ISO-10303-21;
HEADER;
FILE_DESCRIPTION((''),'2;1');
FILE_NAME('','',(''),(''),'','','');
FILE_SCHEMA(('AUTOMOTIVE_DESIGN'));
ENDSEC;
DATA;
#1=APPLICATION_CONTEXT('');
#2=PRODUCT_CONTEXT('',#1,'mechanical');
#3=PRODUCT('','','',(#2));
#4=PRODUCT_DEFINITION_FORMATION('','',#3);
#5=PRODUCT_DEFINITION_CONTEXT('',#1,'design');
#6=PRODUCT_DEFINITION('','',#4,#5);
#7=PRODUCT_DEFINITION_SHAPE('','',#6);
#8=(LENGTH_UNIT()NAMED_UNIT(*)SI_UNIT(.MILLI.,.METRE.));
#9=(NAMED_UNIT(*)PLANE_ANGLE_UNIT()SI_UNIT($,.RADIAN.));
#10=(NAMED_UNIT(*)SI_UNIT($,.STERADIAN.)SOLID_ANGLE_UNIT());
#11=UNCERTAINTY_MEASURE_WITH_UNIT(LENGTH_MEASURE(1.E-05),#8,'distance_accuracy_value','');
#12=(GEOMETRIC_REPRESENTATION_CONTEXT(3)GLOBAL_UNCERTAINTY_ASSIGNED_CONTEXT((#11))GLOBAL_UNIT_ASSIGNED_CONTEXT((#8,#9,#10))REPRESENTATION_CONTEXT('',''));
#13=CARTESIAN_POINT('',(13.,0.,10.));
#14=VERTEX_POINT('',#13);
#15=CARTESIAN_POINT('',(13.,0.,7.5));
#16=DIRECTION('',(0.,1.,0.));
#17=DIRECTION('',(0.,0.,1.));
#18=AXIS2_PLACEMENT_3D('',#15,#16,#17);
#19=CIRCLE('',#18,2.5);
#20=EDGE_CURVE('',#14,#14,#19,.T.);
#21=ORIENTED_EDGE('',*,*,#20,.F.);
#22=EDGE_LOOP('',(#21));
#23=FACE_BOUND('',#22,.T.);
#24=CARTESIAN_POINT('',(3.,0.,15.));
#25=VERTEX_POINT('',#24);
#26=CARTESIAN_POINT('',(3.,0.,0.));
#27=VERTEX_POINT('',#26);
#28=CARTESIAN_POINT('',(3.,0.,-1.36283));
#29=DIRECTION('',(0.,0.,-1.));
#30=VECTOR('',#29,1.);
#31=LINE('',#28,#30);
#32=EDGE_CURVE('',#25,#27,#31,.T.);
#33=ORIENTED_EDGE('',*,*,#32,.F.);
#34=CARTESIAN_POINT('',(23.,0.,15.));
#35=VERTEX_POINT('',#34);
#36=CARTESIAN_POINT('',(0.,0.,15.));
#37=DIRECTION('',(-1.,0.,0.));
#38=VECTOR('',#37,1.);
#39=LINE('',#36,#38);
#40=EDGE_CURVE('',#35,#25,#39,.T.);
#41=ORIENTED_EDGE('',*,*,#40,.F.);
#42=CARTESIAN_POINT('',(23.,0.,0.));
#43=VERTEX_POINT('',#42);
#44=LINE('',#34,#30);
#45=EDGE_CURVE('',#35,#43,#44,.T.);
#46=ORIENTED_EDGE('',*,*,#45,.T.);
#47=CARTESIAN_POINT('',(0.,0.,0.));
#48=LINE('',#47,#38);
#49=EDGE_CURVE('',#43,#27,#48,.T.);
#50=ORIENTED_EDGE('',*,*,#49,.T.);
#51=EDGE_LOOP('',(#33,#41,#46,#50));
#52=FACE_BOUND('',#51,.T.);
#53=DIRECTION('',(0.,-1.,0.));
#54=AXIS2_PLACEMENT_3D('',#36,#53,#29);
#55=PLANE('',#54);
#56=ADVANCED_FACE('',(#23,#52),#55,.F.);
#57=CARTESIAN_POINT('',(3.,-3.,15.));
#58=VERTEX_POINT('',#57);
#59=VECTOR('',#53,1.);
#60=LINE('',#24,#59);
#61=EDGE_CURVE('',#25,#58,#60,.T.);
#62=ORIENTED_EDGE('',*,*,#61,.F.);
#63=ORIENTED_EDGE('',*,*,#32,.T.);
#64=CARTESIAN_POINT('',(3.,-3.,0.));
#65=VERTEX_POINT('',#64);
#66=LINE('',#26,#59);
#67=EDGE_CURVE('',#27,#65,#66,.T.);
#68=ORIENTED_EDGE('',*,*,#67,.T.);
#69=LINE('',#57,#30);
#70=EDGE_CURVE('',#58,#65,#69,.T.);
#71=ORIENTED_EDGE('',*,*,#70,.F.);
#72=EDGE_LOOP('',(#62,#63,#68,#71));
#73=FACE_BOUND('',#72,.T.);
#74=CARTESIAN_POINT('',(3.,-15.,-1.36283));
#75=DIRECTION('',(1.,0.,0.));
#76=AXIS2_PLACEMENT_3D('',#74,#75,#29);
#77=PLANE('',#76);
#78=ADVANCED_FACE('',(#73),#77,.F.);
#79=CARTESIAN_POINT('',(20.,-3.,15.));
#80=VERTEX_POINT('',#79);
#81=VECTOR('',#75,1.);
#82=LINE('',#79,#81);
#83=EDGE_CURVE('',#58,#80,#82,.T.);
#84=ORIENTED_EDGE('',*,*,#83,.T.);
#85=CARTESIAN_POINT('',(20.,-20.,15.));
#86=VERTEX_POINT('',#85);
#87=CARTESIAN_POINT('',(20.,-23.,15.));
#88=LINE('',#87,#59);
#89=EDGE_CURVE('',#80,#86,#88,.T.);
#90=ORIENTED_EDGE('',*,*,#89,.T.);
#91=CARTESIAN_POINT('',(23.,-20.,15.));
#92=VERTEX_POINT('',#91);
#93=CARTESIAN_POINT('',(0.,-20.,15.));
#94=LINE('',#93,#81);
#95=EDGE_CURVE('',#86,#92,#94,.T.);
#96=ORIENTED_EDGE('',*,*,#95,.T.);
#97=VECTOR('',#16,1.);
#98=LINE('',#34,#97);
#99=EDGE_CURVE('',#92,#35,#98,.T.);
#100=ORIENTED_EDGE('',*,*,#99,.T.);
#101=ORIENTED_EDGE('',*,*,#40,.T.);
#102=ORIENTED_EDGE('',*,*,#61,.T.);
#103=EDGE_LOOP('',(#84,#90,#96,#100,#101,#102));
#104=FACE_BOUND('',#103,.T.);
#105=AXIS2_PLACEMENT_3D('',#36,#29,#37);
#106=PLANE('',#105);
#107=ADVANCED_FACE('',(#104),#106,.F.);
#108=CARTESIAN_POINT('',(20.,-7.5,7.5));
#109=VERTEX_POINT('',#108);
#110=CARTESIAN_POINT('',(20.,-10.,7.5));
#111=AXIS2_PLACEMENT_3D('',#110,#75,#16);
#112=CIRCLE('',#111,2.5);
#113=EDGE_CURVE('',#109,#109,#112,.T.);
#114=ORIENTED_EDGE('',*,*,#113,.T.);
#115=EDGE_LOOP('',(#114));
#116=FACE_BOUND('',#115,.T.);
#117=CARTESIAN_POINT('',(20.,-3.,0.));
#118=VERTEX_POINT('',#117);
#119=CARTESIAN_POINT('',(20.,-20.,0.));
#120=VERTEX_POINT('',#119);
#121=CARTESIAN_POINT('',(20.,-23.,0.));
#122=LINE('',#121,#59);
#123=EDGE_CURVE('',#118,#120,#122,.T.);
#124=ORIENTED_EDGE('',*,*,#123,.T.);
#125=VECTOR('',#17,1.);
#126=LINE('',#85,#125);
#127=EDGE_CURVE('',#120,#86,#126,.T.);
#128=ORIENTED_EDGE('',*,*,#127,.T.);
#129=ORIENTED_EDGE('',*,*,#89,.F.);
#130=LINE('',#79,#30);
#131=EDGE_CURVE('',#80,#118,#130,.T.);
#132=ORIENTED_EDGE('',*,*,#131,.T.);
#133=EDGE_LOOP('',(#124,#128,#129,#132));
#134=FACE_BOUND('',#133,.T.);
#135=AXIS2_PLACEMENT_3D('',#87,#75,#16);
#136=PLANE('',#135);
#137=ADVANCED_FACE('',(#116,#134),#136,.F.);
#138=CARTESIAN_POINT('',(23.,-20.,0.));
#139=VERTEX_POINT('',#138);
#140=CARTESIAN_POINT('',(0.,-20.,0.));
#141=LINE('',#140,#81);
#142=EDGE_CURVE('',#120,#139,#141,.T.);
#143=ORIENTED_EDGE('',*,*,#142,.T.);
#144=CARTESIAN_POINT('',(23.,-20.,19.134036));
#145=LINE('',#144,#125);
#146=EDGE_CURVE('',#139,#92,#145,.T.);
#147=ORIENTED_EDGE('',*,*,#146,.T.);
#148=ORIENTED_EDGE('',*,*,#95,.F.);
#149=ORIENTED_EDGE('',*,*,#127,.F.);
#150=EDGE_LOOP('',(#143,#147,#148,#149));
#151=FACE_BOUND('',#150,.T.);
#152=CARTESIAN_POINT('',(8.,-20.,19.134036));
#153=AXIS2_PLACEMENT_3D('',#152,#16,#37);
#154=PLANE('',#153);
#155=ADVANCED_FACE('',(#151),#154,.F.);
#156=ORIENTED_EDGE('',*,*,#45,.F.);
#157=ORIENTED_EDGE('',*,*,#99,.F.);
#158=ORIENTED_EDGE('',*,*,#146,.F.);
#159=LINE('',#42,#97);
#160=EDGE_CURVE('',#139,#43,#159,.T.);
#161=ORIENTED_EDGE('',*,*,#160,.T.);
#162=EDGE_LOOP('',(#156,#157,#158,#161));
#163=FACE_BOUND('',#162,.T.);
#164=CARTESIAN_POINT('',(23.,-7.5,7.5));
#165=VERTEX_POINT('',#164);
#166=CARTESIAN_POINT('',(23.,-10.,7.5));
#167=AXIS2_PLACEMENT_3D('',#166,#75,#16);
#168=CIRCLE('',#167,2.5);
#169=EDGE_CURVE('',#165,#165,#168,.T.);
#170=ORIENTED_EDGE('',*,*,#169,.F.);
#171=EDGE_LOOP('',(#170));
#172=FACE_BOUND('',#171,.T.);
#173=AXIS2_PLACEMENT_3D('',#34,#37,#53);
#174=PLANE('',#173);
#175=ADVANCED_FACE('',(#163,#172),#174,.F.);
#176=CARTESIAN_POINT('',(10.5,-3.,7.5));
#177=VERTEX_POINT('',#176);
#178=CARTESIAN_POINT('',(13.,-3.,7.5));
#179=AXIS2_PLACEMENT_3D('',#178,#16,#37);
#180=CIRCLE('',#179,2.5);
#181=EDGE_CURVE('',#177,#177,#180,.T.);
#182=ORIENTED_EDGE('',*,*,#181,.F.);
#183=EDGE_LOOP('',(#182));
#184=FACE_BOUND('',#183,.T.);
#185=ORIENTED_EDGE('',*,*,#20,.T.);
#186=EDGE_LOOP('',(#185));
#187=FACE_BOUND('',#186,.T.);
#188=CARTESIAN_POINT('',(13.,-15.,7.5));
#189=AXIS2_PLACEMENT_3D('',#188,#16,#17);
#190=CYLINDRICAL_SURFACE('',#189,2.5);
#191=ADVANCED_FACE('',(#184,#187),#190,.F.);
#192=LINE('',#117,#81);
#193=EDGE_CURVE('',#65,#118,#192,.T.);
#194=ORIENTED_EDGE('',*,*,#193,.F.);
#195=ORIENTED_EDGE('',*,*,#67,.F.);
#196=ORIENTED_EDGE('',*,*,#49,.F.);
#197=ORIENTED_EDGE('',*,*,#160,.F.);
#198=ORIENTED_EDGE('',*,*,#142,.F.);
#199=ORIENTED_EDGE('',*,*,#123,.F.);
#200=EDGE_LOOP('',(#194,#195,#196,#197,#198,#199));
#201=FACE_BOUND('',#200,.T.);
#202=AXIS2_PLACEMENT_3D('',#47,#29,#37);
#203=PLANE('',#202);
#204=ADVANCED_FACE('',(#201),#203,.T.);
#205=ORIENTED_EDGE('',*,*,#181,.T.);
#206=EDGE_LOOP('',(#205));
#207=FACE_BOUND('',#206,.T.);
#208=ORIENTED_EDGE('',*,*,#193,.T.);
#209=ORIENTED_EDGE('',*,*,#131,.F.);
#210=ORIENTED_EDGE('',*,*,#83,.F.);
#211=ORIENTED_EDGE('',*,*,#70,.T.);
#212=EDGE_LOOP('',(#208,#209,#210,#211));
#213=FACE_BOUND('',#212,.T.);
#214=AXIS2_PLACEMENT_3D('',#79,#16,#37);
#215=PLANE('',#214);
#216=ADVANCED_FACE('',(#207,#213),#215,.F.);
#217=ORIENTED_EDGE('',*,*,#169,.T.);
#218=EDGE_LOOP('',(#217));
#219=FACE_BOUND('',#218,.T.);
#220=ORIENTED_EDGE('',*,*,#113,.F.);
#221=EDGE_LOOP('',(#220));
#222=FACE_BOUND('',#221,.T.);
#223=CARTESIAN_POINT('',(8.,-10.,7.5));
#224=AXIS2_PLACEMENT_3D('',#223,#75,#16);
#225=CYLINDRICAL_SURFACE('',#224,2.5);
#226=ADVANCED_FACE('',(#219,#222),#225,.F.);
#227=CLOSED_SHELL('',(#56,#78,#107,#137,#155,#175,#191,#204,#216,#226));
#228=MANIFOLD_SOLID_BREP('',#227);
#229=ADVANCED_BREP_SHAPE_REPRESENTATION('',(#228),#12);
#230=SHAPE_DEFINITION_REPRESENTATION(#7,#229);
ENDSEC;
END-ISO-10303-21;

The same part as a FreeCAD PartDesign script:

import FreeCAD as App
import Part
import Sketcher
from FreeCAD import Vector


def add_polygon(sketch, points):
    """Adds a closed chain of lines whose ends are joined by coincident constraints."""
    first, n = sketch.GeometryCount, len(points)
    for a, b in zip(points, points[1:] + points[:1]):
        sketch.addGeometry(Part.LineSegment(App.Vector(*a, 0), App.Vector(*b, 0)), False)
    for i in range(n):
        sketch.addConstraint(Sketcher.Constraint("Coincident", first + i, 2, first + (i + 1) % n, 1))

doc = App.newDocument("Part")
body = doc.addObject("PartDesign::Body", "Body")

# Sketch on XY plane
sketch1 = doc.addObject("Sketcher::SketchObject", "Sketch")
body.addObject(sketch1)
sketch1.AttachmentSupport = (doc.XY_Plane, [""])
sketch1.MapMode = "FlatFace"
add_polygon(sketch1, [(23, 0), (0, 0), (0, -3), (20, -3), (20, -23), (23, -23)])  # lines 0-5
sketch1.addConstraint(Sketcher.Constraint("Horizontal", 0))
sketch1.addConstraint(Sketcher.Constraint("Vertical", 1))
sketch1.addConstraint(Sketcher.Constraint("Horizontal", 2))
sketch1.addConstraint(Sketcher.Constraint("Vertical", 3))
sketch1.addConstraint(Sketcher.Constraint("Horizontal", 4))
sketch1.addConstraint(Sketcher.Constraint("Vertical", 5))
sketch1.addConstraint(Sketcher.Constraint("Coincident", 0, 2, -1, 1))
sketch1.addConstraint(Sketcher.Constraint("Equal", 4, 1))
sketch1.addConstraint(Sketcher.Constraint("Equal", 2, 3))
sketch1.addConstraint(Sketcher.Constraint("DistanceX", 0, 2, 0, 1, 23.0))
sketch1.addConstraint(Sketcher.Constraint("DistanceX", 2, 1, 2, 2, 20.0))
pad1 = doc.addObject("PartDesign::Pad", "Pad")
body.addObject(pad1)
pad1.Profile = sketch1
pad1.Length = 15

# Sketch on XZ plane
sketch2 = doc.addObject("Sketcher::SketchObject", "Sketch001")
body.addObject(sketch2)
sketch2.AttachmentSupport = (doc.XZ_Plane, [""])
sketch2.MapMode = "FlatFace"
sketch2.addGeometry(Part.Circle(Vector(13, 7.5, 0), Vector(0, 0, 1), 2.5), False)
sketch2.addConstraint(Sketcher.Constraint("Diameter", 0, 5.0))
sketch2.addConstraint(Sketcher.Constraint("DistanceX", -1, 1, 0, 3, 13.0))
sketch2.addConstraint(Sketcher.Constraint("DistanceY", -1, 1, 0, 3, 7.5))
pocket1 = doc.addObject("PartDesign::Pocket", "Pocket")
body.addObject(pocket1)
pocket1.Profile = sketch2
pocket1.Length = 15
pocket1.Reversed = True

# Sketch on YZ plane
sketch3 = doc.addObject("Sketcher::SketchObject", "Sketch002")
body.addObject(sketch3)
sketch3.AttachmentSupport = (doc.YZ_Plane, [""])
sketch3.MapMode = "FlatFace"
sketch3.AttachmentOffset = App.Placement(Vector(0, 0, 23), App.Rotation())
sketch3.addGeometry(Part.Circle(Vector(-10, 7.5, 0), Vector(0, 0, 1), 2.5), False)
sketch3.addConstraint(Sketcher.Constraint("Diameter", 0, 5.0))
sketch3.addConstraint(Sketcher.Constraint("DistanceX", 0, 3, -1, 1, 10.0))
sketch3.addConstraint(Sketcher.Constraint("DistanceY", -1, 1, 0, 3, 7.5))
pocket2 = doc.addObject("PartDesign::Pocket", "Pocket001")
body.addObject(pocket2)
pocket2.Profile = sketch3
pocket2.Length = 15

# Sketch on YZ plane
sketch4 = doc.addObject("Sketcher::SketchObject", "Sketch003")
body.addObject(sketch4)
sketch4.AttachmentSupport = (doc.YZ_Plane, [""])
sketch4.MapMode = "FlatFace"
sketch4.AttachmentOffset = App.Placement(Vector(0, 0, 23), App.Rotation())
add_polygon(sketch4, [(-20, 19), (-27, 19), (-27, -4), (-20, -4)])  # lines 0-3
sketch4.addConstraint(Sketcher.Constraint("Horizontal", 0))
sketch4.addConstraint(Sketcher.Constraint("Vertical", 1))
sketch4.addConstraint(Sketcher.Constraint("Horizontal", 2))
sketch4.addConstraint(Sketcher.Constraint("Vertical", 3))
sketch4.addConstraint(Sketcher.Constraint("DistanceX", 2, 2, -1, 1, 20.0))
sketch4.addConstraint(Sketcher.Constraint("DistanceX", 0, 2, 0, 1, 7.177811))
sketch4.addConstraint(Sketcher.Constraint("DistanceY", 1, 2, 1, 1, 22.939089))
sketch4.addConstraint(Sketcher.Constraint("DistanceY", -1, 1, 0, 2, 19.134036))
pocket3 = doc.addObject("PartDesign::Pocket", "Pocket002")
body.addObject(pocket3)
pocket3.Profile = sketch4
pocket3.Length = 15

# Sketch on XZ plane
sketch5 = doc.addObject("Sketcher::SketchObject", "Sketch004")
body.addObject(sketch5)
sketch5.AttachmentSupport = (doc.XZ_Plane, [""])
sketch5.MapMode = "FlatFace"
add_polygon(sketch5, [(-0.5, -1.4), (-0.5, 16.1), (3, 16.1), (3, -1.4)])  # lines 0-3
sketch5.addConstraint(Sketcher.Constraint("Vertical", 0))
sketch5.addConstraint(Sketcher.Constraint("Horizontal", 1))
sketch5.addConstraint(Sketcher.Constraint("Vertical", 2))
sketch5.addConstraint(Sketcher.Constraint("Horizontal", 3))
sketch5.addConstraint(Sketcher.Constraint("DistanceX", -1, 1, 1, 2, 3.0))
sketch5.addConstraint(Sketcher.Constraint("DistanceX", 1, 1, 1, 2, 3.489667))
sketch5.addConstraint(Sketcher.Constraint("DistanceY", 0, 1, 0, 2, 17.448335))
sketch5.addConstraint(Sketcher.Constraint("DistanceY", 2, 2, -1, 1, 1.36283))
pocket4 = doc.addObject("PartDesign::Pocket", "Pocket003")
body.addObject(pocket4)
pocket4.Profile = sketch5
pocket4.Length = 15
pocket4.Reversed = True

doc.recompute()
